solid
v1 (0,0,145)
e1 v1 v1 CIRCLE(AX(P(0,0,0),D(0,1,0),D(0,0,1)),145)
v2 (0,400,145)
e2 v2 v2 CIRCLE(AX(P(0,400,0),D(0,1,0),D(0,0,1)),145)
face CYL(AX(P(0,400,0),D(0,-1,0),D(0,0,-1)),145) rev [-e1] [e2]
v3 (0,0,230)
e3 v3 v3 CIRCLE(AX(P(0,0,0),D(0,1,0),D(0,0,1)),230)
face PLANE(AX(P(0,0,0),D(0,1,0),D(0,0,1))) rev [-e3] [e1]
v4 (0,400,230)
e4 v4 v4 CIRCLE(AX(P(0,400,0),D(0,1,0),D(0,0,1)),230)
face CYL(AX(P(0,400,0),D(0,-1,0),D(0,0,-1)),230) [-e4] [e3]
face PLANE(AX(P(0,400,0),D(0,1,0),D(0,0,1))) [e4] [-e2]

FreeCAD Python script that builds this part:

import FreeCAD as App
import Part
import Sketcher
from FreeCAD import Vector

doc = App.newDocument("Part")
body = doc.addObject("PartDesign::Body", "Body")

# Sketch on XZ plane
sketch1 = body.newObject("Sketcher::SketchObject", "Sketch")
sketch1.AttachmentSupport = (doc.getObject("XZ_Plane"), [""])
sketch1.MapMode = "FlatFace"
sketch1.addGeometry(Part.Circle(Vector(0, 0, 0), Vector(0, 0, 1), 230), False)
sketch1.addGeometry(Part.Circle(Vector(0, 0, 0), Vector(0, 0, 1), 145), False)
sketch1.addConstraint(Sketcher.Constraint("Coincident", 0, 3, -1, 1))
sketch1.addConstraint(Sketcher.Constraint("Coincident", 1, 3, -1, 1))
sketch1.addConstraint(Sketcher.Constraint("Diameter", 0, 460.0))
sketch1.addConstraint(Sketcher.Constraint("Diameter", 1, 290.0))
pad1 = body.newObject("PartDesign::Pad", "Pad")
pad1.Profile = sketch1
pad1.Length = 400
pad1.Reversed = True

doc.recompute()
